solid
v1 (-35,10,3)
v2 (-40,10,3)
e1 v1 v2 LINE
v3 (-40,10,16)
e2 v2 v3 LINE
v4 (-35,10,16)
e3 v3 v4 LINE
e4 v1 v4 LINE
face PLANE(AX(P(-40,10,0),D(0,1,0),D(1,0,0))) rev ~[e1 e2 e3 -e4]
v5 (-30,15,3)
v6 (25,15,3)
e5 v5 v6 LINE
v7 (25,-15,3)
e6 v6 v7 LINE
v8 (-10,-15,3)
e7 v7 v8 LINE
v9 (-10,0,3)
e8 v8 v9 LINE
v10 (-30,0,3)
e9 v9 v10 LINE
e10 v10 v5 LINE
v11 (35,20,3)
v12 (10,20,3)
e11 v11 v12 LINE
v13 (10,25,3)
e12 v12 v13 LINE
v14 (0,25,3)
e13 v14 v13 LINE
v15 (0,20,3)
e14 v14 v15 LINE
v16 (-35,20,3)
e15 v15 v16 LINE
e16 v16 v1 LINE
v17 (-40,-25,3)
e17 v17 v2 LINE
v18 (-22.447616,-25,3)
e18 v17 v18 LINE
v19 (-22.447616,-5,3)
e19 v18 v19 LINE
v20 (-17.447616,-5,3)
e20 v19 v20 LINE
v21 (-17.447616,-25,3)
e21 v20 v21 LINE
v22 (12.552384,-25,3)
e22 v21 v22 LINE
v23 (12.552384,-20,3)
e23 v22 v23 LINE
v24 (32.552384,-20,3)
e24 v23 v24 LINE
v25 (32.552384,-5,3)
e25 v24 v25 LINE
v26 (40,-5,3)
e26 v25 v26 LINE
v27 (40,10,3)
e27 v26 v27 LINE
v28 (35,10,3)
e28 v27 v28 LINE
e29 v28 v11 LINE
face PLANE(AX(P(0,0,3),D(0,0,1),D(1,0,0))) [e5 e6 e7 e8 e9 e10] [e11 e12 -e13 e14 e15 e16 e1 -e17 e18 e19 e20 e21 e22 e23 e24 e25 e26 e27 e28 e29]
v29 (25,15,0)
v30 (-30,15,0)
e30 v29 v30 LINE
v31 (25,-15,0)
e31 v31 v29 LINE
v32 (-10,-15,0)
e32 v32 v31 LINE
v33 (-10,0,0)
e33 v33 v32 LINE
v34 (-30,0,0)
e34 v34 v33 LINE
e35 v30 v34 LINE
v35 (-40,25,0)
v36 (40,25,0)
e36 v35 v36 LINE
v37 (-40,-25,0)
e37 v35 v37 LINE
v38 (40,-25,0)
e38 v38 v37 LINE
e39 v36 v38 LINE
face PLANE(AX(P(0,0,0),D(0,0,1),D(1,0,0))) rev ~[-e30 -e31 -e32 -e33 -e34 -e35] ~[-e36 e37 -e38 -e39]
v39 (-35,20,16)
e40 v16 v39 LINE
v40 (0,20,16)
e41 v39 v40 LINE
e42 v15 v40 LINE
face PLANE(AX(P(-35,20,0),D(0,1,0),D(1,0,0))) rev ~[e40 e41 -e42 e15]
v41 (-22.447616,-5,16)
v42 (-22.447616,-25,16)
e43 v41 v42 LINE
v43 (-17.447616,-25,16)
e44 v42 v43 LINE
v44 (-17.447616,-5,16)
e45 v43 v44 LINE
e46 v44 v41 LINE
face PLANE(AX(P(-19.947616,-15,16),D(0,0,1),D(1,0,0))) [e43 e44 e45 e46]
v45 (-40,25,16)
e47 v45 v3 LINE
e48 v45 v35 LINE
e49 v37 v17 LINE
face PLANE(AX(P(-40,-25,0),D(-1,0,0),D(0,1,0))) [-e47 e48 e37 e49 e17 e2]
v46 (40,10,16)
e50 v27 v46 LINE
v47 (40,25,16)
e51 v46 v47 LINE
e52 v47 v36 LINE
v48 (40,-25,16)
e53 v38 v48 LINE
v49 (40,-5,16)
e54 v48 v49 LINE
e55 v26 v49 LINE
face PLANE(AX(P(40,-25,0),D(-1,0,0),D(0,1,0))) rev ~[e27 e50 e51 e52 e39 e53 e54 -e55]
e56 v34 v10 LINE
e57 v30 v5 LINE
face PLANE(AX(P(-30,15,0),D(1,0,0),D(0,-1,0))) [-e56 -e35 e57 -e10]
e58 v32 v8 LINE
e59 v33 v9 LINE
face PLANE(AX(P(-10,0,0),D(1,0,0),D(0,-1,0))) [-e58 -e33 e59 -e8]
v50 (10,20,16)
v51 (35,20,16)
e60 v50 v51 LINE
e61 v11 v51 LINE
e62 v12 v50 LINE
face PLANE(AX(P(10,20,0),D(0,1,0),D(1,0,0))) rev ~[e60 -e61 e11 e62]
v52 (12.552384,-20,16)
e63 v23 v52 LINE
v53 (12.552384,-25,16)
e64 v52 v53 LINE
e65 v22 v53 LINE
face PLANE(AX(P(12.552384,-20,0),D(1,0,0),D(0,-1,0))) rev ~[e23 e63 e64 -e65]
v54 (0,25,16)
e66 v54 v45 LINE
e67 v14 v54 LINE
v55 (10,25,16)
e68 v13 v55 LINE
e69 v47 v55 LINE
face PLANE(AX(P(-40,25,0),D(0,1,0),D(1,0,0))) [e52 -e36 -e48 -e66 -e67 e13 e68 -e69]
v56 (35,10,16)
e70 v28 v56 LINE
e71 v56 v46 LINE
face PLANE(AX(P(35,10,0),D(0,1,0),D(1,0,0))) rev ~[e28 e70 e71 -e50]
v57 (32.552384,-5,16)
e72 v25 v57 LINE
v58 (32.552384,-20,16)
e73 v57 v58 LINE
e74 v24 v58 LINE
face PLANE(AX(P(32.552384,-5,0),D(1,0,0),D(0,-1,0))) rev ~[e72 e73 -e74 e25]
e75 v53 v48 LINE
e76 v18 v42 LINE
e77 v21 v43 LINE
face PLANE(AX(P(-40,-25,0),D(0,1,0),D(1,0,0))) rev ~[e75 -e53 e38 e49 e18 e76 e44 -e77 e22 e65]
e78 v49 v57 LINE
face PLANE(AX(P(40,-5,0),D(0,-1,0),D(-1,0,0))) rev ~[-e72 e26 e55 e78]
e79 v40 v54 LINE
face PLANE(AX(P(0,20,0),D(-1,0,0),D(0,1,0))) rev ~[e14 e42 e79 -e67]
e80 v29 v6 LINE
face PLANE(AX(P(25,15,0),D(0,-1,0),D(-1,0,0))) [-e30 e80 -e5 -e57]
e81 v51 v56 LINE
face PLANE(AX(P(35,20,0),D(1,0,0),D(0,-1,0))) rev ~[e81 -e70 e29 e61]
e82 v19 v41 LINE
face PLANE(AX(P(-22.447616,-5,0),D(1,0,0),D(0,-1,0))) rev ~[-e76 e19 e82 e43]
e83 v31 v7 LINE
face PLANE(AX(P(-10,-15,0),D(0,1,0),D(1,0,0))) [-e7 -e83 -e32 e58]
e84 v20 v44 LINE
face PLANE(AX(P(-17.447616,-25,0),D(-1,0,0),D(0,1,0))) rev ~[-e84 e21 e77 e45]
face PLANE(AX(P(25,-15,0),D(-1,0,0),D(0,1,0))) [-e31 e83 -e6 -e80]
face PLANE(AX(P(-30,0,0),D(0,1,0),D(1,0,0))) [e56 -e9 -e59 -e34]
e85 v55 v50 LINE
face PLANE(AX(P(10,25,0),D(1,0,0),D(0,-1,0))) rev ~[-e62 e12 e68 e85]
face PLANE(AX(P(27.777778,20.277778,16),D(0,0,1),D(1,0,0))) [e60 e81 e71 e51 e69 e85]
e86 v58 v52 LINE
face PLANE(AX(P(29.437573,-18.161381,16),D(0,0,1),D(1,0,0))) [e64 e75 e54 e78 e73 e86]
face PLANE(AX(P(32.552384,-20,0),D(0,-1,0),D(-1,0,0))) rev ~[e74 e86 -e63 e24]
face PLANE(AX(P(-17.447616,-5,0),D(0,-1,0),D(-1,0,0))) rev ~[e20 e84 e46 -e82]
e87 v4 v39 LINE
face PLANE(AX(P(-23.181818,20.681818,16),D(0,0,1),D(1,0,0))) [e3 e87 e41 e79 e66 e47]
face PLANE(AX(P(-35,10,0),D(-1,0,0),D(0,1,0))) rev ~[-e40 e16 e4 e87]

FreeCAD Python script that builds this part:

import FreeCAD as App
import Part
import Sketcher
from FreeCAD import Vector
Q = App.Units.Quantity


def add_polygon(sketch, points):
    """Adds a closed chain of lines whose ends are joined by coincident constraints."""
    first, n = sketch.GeometryCount, len(points)
    for a, b in zip(points, points[1:] + points[:1]):
        sketch.addGeometry(Part.LineSegment(App.Vector(*a, 0), App.Vector(*b, 0)), False)
    for i in range(n):
        sketch.addConstraint(Sketcher.Constraint("Coincident", first + i, 2, first + (i + 1) % n, 1))

doc = App.newDocument("Part")
body = doc.addObject("PartDesign::Body", "Body")

sketch1 = body.newObject("Sketcher::SketchObject", "Sketch")
sketch1.AttachmentSupport = (doc.getObject("XY_Plane"), [""])
sketch1.MapMode = "FlatFace"
add_polygon(sketch1, [(-40, 25), (-40, -25), (40, -25), (40, 25)])
sketch1.addConstraint([
    Sketcher.Constraint("Vertical", 0),
    Sketcher.Constraint("Horizontal", 1),
    Sketcher.Constraint("Vertical", 2),
    Sketcher.Constraint("Horizontal", 3),
    Sketcher.Constraint("Symmetric", 0, 2, 2, 2, -1, 1),
    Sketcher.Constraint("DistanceX", 1, 1, 1, 2, Q("80 mm")),
    Sketcher.Constraint("DistanceY", 0, 2, 0, 1, Q("50 mm")),
])
pad1 = body.newObject("PartDesign::Pad", "Pad")
pad1.Profile = sketch1
pad1.Length = 3

sketch2 = body.newObject("Sketcher::SketchObject", "Sketch001")
sketch2.AttachmentSupport = (doc.getObject("XY_Plane"), [""])
sketch2.MapMode = "FlatFace"
add_polygon(sketch2, [(-35, 20), (0, 20), (0, 25), (-40, 25), (-40, 10), (-35, 10)])
add_polygon(sketch2, [(40, 25), (10, 25), (10, 20), (35, 20), (35, 10), (40, 10)])
add_polygon(sketch2, [(40, -25), (40, -5), (32.552384, -5), (32.552384, -20), (12.552384, -20), (12.552384, -25)])
add_polygon(sketch2, [(-22.447616, -25), (-17.447616, -25), (-17.447616, -5), (-22.447616, -5)])
sketch2.addConstraint([
    Sketcher.Constraint("Horizontal", 0),
    Sketcher.Constraint("Vertical", 1),
    Sketcher.Constraint("Horizontal", 2),
    Sketcher.Constraint("Vertical", 3),
    Sketcher.Constraint("Horizontal", 4),
    Sketcher.Constraint("Vertical", 5),
    Sketcher.Constraint("Horizontal", 6),
    Sketcher.Constraint("Vertical", 7),
    Sketcher.Constraint("Horizontal", 8),
    Sketcher.Constraint("Vertical", 9),
    Sketcher.Constraint("Horizontal", 10),
    Sketcher.Constraint("Vertical", 11),
    Sketcher.Constraint("Vertical", 12),
    Sketcher.Constraint("Horizontal", 13),
    Sketcher.Constraint("Vertical", 14),
    Sketcher.Constraint("Horizontal", 15),
    Sketcher.Constraint("Vertical", 16),
    Sketcher.Constraint("Horizontal", 17),
    Sketcher.Constraint("Horizontal", 18),
    Sketcher.Constraint("Vertical", 19),
    Sketcher.Constraint("Horizontal", 20),
    Sketcher.Constraint("Vertical", 21),
    Sketcher.Constraint("Symmetric", 2, 2, 17, 2, -1, 1),
    Sketcher.Constraint("Symmetric", 5, 2, 8, 2, -2),
    Sketcher.Constraint("Symmetric", 3, 2, 10, 2, -2),
    Sketcher.Constraint("PointOnObject", 0, 2, -2),
    Sketcher.Constraint("Horizontal", 2, 2, 6, 2),
    Sketcher.Constraint("Horizontal", 17, 2, 18, 2),
    Sketcher.Constraint("Horizontal", 13, 2, 19, 2),
    Sketcher.Constraint("Equal", 10, 18),
    Sketcher.Constraint("Equal", 20, 1),
    Sketcher.Constraint("Equal", 15, 12),
    Sketcher.Constraint("Equal", 11, 14),
    Sketcher.Constraint("Equal", 7, 16),
    Sketcher.Constraint("DistanceX", 0, 1, 0, 2, Q("35 mm")),
    Sketcher.Constraint("DistanceX", 2, 2, 2, 1, Q("40 mm")),
    Sketcher.Constraint("DistanceX", 6, 2, 6, 1, Q("30 mm")),
    Sketcher.Constraint("DistanceX", 15, 2, 15, 1, Q("20 mm")),
    Sketcher.Constraint("DistanceY", -1, 1, 0, 2, Q("20 mm")),
    Sketcher.Constraint("DistanceX", 18, 2, 16, 2, Q("30 mm")),
    Sketcher.Constraint("DistanceX", 13, 2, 13, 1, Q("7.447616 mm")),
])
pad2 = body.newObject("PartDesign::Pad", "Pad001")
pad2.Profile = sketch2
pad2.Length = 16
body2 = doc.addObject("PartDesign::Body", "Body001")

sketch3 = body2.newObject("Sketcher::SketchObject", "Sketch002")
sketch3.AttachmentSupport = (doc.getObject("XY_Plane001"), [""])
sketch3.MapMode = "FlatFace"
add_polygon(sketch3, [(-30, 0), (-10, 0), (-10, -15), (25, -15), (25, 15), (-30, 15)])
sketch3.addConstraint([
    Sketcher.Constraint("Horizontal", 0),
    Sketcher.Constraint("Vertical", 1),
    Sketcher.Constraint("Horizontal", 2),
    Sketcher.Constraint("Vertical", 3),
    Sketcher.Constraint("Horizontal", 4),
    Sketcher.Constraint("Vertical", 5),
    Sketcher.Constraint("PointOnObject", 0, 2, -1),
    Sketcher.Constraint("Equal", 1, 5),
    Sketcher.Constraint("DistanceX", 0, 1, 0, 2, Q("20 mm")),
    Sketcher.Constraint("DistanceX", 2, 1, 2, 2, Q("35 mm")),
    Sketcher.Constraint("DistanceY", 1, 2, 1, 1, Q("15 mm")),
    Sketcher.Constraint("DistanceX", 0, 2, -1, 1, Q("10 mm")),
])
pad3 = body2.newObject("PartDesign::Pad", "Pad002")
pad3.Profile = sketch3
pad3.Length = 25
doc.recompute()

boolean = body.newObject("PartDesign::Boolean", "Boolean")
boolean.Type = "Cut"
boolean.addObjects([body2])

doc.recompute()
